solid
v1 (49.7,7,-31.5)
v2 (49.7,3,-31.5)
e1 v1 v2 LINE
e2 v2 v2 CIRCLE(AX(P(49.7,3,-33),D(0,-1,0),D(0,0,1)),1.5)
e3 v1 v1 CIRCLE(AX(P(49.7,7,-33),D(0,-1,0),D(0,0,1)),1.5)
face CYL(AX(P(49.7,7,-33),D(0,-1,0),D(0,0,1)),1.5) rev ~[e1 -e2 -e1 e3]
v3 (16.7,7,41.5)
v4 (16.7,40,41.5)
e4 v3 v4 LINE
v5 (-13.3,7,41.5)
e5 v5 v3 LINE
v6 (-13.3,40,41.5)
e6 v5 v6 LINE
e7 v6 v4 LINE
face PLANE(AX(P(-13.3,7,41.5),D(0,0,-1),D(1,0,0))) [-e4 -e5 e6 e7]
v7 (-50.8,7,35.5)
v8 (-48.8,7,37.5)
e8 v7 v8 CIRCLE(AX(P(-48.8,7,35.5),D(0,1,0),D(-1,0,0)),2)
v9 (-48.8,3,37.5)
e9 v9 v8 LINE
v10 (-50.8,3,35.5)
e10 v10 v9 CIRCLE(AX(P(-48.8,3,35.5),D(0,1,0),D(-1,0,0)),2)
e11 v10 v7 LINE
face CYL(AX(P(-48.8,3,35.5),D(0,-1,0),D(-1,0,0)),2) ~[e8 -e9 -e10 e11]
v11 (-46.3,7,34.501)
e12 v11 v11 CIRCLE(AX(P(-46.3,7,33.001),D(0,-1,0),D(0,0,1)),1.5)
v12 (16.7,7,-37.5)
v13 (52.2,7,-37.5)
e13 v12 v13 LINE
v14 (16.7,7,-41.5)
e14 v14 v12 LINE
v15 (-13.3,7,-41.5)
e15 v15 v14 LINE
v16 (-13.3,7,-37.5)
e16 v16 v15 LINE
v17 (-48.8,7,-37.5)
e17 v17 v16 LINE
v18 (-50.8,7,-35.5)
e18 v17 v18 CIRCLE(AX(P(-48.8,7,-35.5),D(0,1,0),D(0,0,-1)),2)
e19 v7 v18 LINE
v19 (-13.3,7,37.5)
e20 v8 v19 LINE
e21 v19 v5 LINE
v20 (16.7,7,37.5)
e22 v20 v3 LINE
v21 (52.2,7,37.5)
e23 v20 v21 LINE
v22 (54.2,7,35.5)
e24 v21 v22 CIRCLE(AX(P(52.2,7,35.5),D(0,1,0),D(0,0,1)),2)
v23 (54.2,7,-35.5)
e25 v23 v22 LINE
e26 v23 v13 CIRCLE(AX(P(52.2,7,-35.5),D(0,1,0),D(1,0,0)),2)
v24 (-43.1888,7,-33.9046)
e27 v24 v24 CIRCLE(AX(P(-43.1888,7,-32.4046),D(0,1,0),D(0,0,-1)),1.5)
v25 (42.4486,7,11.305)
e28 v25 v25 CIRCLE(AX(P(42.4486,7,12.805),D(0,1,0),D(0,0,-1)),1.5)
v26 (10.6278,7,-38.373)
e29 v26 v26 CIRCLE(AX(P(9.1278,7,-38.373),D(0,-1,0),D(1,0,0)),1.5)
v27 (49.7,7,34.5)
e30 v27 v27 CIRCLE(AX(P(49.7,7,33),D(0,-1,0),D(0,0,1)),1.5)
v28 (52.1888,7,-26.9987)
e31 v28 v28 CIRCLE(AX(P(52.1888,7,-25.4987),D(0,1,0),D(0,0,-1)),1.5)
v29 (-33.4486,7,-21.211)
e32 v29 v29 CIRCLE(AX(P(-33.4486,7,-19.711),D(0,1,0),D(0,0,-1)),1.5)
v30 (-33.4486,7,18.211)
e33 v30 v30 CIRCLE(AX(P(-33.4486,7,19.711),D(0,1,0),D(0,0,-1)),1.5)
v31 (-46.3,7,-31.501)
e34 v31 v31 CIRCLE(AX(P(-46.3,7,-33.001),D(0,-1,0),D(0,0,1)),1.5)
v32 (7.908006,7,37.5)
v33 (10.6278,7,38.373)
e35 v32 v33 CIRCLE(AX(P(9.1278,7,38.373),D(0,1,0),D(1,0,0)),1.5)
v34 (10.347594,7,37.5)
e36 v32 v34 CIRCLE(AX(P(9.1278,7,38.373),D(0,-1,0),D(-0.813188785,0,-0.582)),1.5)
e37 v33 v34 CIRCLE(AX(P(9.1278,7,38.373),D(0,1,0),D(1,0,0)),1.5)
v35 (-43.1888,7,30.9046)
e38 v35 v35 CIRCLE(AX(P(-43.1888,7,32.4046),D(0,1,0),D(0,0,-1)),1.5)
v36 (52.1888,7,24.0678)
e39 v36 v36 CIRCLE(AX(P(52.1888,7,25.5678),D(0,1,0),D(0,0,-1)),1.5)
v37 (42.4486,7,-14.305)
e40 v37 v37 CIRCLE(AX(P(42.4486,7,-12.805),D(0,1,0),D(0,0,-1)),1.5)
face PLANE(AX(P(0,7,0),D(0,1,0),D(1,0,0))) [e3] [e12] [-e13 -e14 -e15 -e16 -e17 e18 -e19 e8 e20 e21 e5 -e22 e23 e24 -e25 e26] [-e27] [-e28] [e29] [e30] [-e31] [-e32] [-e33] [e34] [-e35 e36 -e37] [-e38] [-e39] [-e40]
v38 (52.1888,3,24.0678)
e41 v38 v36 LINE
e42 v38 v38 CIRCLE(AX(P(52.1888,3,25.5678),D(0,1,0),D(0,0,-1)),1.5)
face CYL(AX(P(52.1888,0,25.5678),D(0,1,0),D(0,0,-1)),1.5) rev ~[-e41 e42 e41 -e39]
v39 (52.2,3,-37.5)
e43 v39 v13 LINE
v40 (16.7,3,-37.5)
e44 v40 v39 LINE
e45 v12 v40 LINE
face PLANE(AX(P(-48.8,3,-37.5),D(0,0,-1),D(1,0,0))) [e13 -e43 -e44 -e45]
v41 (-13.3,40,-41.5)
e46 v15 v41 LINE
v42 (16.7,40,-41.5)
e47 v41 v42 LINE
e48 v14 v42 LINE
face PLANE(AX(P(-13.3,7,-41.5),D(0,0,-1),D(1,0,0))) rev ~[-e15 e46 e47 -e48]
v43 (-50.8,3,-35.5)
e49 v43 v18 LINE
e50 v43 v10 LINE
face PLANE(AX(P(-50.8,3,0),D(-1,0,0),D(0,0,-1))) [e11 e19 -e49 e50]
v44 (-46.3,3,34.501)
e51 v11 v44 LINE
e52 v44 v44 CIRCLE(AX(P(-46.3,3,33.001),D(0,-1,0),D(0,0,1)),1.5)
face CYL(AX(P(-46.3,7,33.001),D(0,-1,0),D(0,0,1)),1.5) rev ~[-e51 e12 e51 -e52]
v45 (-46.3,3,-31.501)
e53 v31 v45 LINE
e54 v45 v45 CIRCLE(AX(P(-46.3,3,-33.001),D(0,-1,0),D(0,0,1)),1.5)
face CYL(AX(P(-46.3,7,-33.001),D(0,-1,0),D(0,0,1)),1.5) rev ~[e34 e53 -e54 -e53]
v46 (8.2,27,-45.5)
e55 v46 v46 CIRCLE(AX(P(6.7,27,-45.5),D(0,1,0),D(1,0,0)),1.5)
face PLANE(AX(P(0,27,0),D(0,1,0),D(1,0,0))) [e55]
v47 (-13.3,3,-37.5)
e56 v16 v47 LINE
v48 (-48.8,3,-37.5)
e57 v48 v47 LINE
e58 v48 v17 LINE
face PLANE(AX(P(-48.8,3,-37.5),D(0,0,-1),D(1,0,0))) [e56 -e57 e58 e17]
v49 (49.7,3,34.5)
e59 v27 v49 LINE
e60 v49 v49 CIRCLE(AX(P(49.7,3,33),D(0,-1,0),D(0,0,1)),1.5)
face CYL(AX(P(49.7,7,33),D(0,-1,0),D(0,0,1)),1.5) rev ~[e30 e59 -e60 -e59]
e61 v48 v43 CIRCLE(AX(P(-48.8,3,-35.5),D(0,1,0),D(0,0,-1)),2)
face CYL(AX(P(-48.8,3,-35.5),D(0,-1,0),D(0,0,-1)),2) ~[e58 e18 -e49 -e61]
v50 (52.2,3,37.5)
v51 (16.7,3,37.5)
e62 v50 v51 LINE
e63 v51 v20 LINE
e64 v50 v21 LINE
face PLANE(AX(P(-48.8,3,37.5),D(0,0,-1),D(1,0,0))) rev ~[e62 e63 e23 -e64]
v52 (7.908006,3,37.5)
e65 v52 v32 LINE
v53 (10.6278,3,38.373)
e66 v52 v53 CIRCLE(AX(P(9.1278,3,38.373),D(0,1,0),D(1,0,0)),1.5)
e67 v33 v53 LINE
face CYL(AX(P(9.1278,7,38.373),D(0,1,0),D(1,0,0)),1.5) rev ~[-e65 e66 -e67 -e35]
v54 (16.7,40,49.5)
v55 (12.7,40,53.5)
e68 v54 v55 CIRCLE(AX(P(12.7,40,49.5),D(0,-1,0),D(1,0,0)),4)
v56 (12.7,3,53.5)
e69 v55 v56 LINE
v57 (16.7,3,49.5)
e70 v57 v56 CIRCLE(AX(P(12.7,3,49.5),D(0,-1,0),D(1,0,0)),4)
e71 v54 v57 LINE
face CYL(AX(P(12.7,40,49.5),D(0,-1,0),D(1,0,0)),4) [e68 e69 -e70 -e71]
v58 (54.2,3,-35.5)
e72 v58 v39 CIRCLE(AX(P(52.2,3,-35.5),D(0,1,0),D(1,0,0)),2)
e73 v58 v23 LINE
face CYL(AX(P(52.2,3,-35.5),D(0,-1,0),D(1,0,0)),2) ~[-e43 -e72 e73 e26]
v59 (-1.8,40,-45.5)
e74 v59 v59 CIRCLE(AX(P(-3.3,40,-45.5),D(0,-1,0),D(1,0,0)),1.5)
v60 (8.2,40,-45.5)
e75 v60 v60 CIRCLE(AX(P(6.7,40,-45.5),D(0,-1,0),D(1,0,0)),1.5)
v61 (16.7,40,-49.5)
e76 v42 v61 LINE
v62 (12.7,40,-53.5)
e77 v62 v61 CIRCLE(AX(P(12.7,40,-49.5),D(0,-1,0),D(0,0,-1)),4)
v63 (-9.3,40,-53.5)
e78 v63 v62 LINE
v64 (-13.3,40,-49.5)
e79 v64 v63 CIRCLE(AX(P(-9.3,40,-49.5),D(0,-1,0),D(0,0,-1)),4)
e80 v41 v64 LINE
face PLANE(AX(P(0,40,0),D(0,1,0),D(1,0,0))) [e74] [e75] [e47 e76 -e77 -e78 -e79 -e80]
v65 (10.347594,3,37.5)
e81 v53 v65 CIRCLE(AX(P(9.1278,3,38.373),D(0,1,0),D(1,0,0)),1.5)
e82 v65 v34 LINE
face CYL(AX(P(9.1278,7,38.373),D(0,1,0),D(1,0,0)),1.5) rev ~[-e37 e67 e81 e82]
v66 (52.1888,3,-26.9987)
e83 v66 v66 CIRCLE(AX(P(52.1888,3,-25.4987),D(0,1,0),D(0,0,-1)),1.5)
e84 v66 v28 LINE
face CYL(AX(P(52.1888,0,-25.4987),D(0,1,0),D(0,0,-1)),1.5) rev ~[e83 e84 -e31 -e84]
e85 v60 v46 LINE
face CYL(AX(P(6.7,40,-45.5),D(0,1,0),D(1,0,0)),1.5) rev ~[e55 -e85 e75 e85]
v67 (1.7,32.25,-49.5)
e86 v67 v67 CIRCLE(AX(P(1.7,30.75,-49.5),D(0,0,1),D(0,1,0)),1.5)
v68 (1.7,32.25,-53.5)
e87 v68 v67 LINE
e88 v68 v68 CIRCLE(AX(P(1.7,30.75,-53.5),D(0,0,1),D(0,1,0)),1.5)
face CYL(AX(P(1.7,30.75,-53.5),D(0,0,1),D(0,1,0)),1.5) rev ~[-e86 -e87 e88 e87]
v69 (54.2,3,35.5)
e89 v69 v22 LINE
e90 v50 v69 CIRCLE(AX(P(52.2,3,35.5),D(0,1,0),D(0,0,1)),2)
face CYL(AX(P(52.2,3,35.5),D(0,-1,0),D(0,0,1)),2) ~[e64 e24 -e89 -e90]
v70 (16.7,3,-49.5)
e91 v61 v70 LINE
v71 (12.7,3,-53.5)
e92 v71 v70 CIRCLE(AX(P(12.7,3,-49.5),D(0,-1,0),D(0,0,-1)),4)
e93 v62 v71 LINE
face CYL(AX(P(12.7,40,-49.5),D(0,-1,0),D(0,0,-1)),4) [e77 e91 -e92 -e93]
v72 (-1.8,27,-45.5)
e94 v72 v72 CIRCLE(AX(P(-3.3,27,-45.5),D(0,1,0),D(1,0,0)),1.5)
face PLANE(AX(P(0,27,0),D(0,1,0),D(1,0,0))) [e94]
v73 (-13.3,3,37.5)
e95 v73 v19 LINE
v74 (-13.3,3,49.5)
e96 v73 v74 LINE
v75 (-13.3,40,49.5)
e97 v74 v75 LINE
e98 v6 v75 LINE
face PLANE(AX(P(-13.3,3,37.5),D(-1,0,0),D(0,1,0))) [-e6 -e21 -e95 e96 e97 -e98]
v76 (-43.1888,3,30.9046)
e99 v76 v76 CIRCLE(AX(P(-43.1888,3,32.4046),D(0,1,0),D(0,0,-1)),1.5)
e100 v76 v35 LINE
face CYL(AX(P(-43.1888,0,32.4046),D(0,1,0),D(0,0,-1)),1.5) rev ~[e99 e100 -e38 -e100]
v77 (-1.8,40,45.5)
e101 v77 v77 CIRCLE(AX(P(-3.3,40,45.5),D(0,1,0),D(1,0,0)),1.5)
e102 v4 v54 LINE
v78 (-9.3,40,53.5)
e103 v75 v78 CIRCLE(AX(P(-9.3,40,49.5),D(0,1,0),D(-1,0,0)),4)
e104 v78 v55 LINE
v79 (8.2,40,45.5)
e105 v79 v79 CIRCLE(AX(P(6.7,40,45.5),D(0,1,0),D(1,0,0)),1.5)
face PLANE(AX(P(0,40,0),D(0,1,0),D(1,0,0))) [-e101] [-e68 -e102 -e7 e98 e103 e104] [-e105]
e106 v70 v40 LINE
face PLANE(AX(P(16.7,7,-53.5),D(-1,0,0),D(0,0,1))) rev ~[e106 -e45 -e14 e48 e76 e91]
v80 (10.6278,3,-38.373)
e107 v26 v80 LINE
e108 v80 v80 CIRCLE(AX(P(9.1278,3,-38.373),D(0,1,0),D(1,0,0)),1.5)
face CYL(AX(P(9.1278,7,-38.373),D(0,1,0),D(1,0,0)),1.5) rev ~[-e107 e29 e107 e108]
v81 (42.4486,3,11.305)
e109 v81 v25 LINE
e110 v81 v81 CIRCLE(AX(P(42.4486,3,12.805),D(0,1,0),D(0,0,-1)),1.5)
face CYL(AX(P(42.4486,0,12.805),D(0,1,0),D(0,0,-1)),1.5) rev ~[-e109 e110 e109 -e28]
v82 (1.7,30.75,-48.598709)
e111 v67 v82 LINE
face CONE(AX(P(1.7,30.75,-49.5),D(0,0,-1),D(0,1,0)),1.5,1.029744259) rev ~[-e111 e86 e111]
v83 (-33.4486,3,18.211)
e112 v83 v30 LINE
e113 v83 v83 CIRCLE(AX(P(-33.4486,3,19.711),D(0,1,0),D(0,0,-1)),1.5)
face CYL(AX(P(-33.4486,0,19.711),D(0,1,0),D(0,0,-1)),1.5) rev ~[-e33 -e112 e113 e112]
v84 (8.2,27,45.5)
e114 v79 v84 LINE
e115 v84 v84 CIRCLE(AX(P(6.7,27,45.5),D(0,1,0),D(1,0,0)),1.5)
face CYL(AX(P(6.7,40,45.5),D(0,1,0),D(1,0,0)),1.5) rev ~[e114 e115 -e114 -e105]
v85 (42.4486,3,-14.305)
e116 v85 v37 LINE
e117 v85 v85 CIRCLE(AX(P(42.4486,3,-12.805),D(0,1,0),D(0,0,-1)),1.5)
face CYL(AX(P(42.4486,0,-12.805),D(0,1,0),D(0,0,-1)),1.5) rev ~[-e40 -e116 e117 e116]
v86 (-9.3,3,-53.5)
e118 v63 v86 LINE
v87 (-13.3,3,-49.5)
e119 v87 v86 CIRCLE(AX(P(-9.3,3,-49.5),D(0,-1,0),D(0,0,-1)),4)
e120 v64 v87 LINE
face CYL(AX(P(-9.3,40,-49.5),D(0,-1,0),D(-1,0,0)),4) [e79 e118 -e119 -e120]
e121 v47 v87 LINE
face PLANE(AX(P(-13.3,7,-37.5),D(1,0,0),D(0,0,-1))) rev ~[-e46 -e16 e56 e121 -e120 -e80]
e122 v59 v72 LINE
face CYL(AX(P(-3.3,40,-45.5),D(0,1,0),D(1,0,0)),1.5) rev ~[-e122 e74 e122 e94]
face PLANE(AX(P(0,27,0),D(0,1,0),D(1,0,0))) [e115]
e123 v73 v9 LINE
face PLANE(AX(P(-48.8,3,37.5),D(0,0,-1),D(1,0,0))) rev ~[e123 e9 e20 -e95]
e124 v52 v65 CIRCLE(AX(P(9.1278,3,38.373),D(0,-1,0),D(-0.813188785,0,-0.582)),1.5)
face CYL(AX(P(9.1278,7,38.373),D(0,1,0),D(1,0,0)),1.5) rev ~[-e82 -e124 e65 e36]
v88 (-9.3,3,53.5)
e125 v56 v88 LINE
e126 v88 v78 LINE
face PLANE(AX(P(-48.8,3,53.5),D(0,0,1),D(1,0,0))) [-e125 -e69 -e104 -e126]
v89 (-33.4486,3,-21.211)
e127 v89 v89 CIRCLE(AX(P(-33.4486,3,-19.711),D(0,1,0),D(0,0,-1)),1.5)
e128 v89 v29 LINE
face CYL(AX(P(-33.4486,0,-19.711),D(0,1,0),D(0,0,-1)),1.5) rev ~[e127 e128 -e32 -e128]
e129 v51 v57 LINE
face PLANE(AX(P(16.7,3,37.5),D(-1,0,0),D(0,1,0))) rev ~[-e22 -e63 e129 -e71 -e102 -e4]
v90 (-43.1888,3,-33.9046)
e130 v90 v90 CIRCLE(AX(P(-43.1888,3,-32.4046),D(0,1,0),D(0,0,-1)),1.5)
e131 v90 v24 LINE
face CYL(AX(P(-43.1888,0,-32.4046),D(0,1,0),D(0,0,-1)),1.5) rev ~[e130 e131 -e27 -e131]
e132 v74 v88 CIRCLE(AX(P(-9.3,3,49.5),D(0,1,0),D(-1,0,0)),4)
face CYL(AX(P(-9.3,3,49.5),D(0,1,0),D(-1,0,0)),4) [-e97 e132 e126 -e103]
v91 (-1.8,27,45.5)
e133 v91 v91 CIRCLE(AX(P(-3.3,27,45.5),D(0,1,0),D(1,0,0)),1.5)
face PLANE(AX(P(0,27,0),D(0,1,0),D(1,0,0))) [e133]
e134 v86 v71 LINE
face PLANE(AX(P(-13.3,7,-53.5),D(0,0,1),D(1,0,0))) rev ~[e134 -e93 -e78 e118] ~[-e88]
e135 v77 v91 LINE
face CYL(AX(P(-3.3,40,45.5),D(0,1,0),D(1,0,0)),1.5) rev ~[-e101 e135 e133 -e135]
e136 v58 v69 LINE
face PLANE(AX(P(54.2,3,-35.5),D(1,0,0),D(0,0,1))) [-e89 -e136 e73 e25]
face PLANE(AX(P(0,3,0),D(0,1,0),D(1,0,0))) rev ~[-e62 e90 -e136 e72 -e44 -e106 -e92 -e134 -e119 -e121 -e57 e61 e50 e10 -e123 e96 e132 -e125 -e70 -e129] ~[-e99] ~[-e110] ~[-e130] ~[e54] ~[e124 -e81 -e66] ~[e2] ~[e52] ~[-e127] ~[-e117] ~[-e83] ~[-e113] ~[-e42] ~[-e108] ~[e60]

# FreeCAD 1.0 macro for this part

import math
import FreeCAD as App
import Part
import Sketcher
Q = App.Units.Quantity


def edges_at(feature, points):
    """Names of the edges that pass closest to the given points."""
    edges = feature.Shape.Edges
    near = lambda p: min(range(len(edges)), key=lambda i: edges[i].distToShape(Part.Vertex(*p))[0])
    return sorted({f"Edge{near(p) + 1}" for p in points})


def add_polygon(sketch, points):
    """Adds a closed chain of lines whose ends are joined by coincident constraints."""
    first, n = sketch.GeometryCount, len(points)
    for a, b in zip(points, points[1:] + points[:1]):
        sketch.addGeometry(Part.LineSegment(App.Vector(*a, 0), App.Vector(*b, 0)), False)
    for i in range(n):
        sketch.addConstraint(Sketcher.Constraint("Coincident", first + i, 2, first + (i + 1) % n, 1))

doc = App.newDocument("Part")
body = doc.addObject("PartDesign::Body", "Body")

sketch1 = body.newObject("Sketcher::SketchObject", "Sketch")
sketch1.AttachmentSupport = (doc.getObject("XZ_Plane"), [""])
sketch1.MapMode = "FlatFace"
sketch1.addGeometry(Part.LineSegment(App.Vector(31.752, 80.9988, 0), App.Vector(18, 63.0769, 0)), False)
sketch1.addGeometry(Part.LineSegment(App.Vector(18, 63.0769, 0), App.Vector(64.0145, 27.7688, 0)), False)
sketch1.addGeometry(Part.LineSegment(App.Vector(64.0145, 27.7688, 0), App.Vector(75.6609, 42.9467, 0)), False)
sketch1.addGeometry(Part.ArcOfCircle(Part.Circle(App.Vector(0, 0, 0), App.Vector(0, 0, 1), 86.999947), math.radians(-29.580145), math.radians(29.580145)), False)
sketch1.addGeometry(Part.LineSegment(App.Vector(75.6609, -42.9467, 0), App.Vector(64.0145, -27.7688, 0)), False)
sketch1.addGeometry(Part.LineSegment(App.Vector(64.0145, -27.7688, 0), App.Vector(18, -63.0769, 0)), False)
sketch1.addGeometry(Part.LineSegment(App.Vector(18, -63.0769, 0), App.Vector(31.752, -80.9988, 0)), False)
sketch1.addGeometry(Part.ArcOfCircle(Part.Circle(App.Vector(0, 0, 0), App.Vector(0, 0, 1), 86.999981), math.radians(-103.444779), math.radians(-68.594532)), False)
sketch1.addGeometry(Part.LineSegment(App.Vector(-20.2282, -84.6157, 0), App.Vector(-9, -69.9829, 0)), False)
sketch1.addGeometry(Part.LineSegment(App.Vector(-9, -69.9829, 0), App.Vector(-55.0145, -34.6747, 0)), False)
sketch1.addGeometry(Part.LineSegment(App.Vector(-55.0145, -34.6747, 0), App.Vector(-58.0583, -38.6415, 0)), False)
sketch1.addGeometry(Part.LineSegment(App.Vector(-58.0583, -38.6415, 0), App.Vector(-59, -37.9189, 0)), False)
sketch1.addGeometry(Part.LineSegment(App.Vector(-59, -37.9189, 0), App.Vector(-59, 37.9189, 0)), False)
sketch1.addGeometry(Part.LineSegment(App.Vector(-59, 37.9189, 0), App.Vector(-58.0583, 38.6415, 0)), False)
sketch1.addGeometry(Part.LineSegment(App.Vector(-58.0583, 38.6415, 0), App.Vector(-55.0145, 34.6747, 0)), False)
sketch1.addGeometry(Part.LineSegment(App.Vector(-55.0145, 34.6747, 0), App.Vector(-9, 69.9829, 0)), False)
sketch1.addGeometry(Part.LineSegment(App.Vector(-9, 69.9829, 0), App.Vector(-20.2282, 84.6157, 0)), False)
sketch1.addGeometry(Part.ArcOfCircle(Part.Circle(App.Vector(0, 0, 0), App.Vector(0, 0, 1), 86.999947), math.radians(68.594532), math.radians(103.444779)), False)
sketch1.addGeometry(Part.Circle(App.Vector(18.868, -51.0667, 0), App.Vector(0, 0, 1), 1.5), False)
sketch1.addGeometry(Part.Circle(App.Vector(52.1888, -25.4987, 0), App.Vector(0, 0, 1), 1.5), False)
add_polygon(sketch1, [(49.5, -10), (74.5, -10), (74.5, 10), (49.5, 10)])
sketch1.addGeometry(Part.Circle(App.Vector(-9.868, -57.9726, 0), App.Vector(0, 0, 1), 1.5), False)
sketch1.addGeometry(Part.Circle(App.Vector(-43.1888, -32.4046, 0), App.Vector(0, 0, 1), 1.5), False)
sketch1.addGeometry(Part.Circle(App.Vector(52.1888, 25.4987, 0), App.Vector(0, 0, 1), 1.5), False)
sketch1.addGeometry(Part.Circle(App.Vector(18.868, 51.0667, 0), App.Vector(0, 0, 1), 1.5), False)
sketch1.addGeometry(Part.Circle(App.Vector(-43.1888, 32.4046, 0), App.Vector(0, 0, 1), 1.5), False)
sketch1.addGeometry(Part.Circle(App.Vector(-9.868, 57.9726, 0), App.Vector(0, 0, 1), 1.5), False)
sketch1.addConstraint(Sketcher.Constraint("Coincident", 0, 2, 1, 1))
sketch1.addConstraint(Sketcher.Constraint("Coincident", 1, 2, 2, 1))
sketch1.addConstraint(Sketcher.Constraint("Coincident", 2, 2, 3, 2))
sketch1.addConstraint(Sketcher.Constraint("Coincident", 3, 1, 4, 1))
sketch1.addConstraint(Sketcher.Constraint("Coincident", 4, 2, 5, 1))
sketch1.addConstraint(Sketcher.Constraint("Coincident", 5, 2, 6, 1))
sketch1.addConstraint(Sketcher.Constraint("Coincident", 6, 2, 7, 2))
sketch1.addConstraint(Sketcher.Constraint("Coincident", 7, 1, 8, 1))
sketch1.addConstraint(Sketcher.Constraint("Coincident", 8, 2, 9, 1))
sketch1.addConstraint(Sketcher.Constraint("Coincident", 9, 2, 10, 1))
sketch1.addConstraint(Sketcher.Constraint("Coincident", 10, 2, 11, 1))
sketch1.addConstraint(Sketcher.Constraint("Coincident", 11, 2, 12, 1))
sketch1.addConstraint(Sketcher.Constraint("Coincident", 12, 2, 13, 1))
sketch1.addConstraint(Sketcher.Constraint("Coincident", 13, 2, 14, 1))
sketch1.addConstraint(Sketcher.Constraint("Coincident", 14, 2, 15, 1))
sketch1.addConstraint(Sketcher.Constraint("Coincident", 15, 2, 16, 1))
sketch1.addConstraint(Sketcher.Constraint("Coincident", 16, 2, 17, 2))
sketch1.addConstraint(Sketcher.Constraint("Coincident", 17, 1, 0, 1))
sketch1.addConstraint(Sketcher.Constraint("Vertical", 12))
sketch1.addConstraint(Sketcher.Constraint("Horizontal", 20))
sketch1.addConstraint(Sketcher.Constraint("Vertical", 21))
sketch1.addConstraint(Sketcher.Constraint("Horizontal", 22))
sketch1.addConstraint(Sketcher.Constraint("Vertical", 23))
sketch1.addConstraint(Sketcher.Constraint("Coincident", 3, 3, -1, 1))
sketch1.addConstraint(Sketcher.Constraint("Coincident", 7, 3, -1, 1))
sketch1.addConstraint(Sketcher.Constraint("Coincident", 17, 3, -1, 1))
sketch1.addConstraint(Sketcher.Constraint("Equal", 3, 7))
sketch1.addConstraint(Sketcher.Constraint("Equal", 7, 17))
sketch1.addConstraint(Sketcher.Constraint("Equal", 18, 19))
sketch1.addConstraint(Sketcher.Constraint("Equal", 19, 24))
sketch1.addConstraint(Sketcher.Constraint("Equal", 24, 25))
sketch1.addConstraint(Sketcher.Constraint("Equal", 25, 26))
sketch1.addConstraint(Sketcher.Constraint("Equal", 26, 27))
sketch1.addConstraint(Sketcher.Constraint("Equal", 27, 28))
sketch1.addConstraint(Sketcher.Constraint("Equal", 28, 29))
sketch1.addConstraint(Sketcher.Constraint("Symmetric", 19, 3, 26, 3, -1))
sketch1.addConstraint(Sketcher.Constraint("Symmetric", 18, 3, 27, 3, -1))
sketch1.addConstraint(Sketcher.Constraint("Symmetric", 25, 3, 28, 3, -1))
sketch1.addConstraint(Sketcher.Constraint("Symmetric", 24, 3, 29, 3, -1))
sketch1.addConstraint(Sketcher.Constraint("Symmetric", 1, 2, 4, 2, -1))
sketch1.addConstraint(Sketcher.Constraint("Symmetric", 0, 2, 5, 2, -1))
sketch1.addConstraint(Sketcher.Constraint("Symmetric", 10, 2, 13, 2, -1))
sketch1.addConstraint(Sketcher.Constraint("Symmetric", 9, 2, 14, 2, -1))
sketch1.addConstraint(Sketcher.Constraint("Symmetric", 8, 2, 15, 2, -1))
sketch1.addConstraint(Sketcher.Constraint("Perpendicular", 0, 1))
sketch1.addConstraint(Sketcher.Constraint("Perpendicular", 1, 2))
sketch1.addConstraint(Sketcher.Constraint("Perpendicular", 4, 5))
sketch1.addConstraint(Sketcher.Constraint("Perpendicular", 5, 6))
sketch1.addConstraint(Sketcher.Constraint("Parallel", 2, 8))
sketch1.addConstraint(Sketcher.Constraint("Perpendicular", 8, 9))
sketch1.addConstraint(Sketcher.Constraint("Perpendicular", 9, 10))
sketch1.addConstraint(Sketcher.Constraint("Perpendicular", 10, 11))
sketch1.addConstraint(Sketcher.Constraint("Perpendicular", 6, 13))
sketch1.addConstraint(Sketcher.Constraint("Perpendicular", 15, 16))
sketch1.addConstraint(Sketcher.Constraint("Equal", 5, 9))
sketch1.addConstraint(Sketcher.Constraint("Diameter", 18, Q("3 mm")))
sketch1.addConstraint(Sketcher.Constraint("Radius", 3, Q("87 mm")))
sketch1.addConstraint(Sketcher.Constraint("DistanceX", 20, 1, 20, 2, Q("25 mm")))
sketch1.addConstraint(Sketcher.Constraint("DistanceY", 21, 1, 21, 2, Q("20 mm")))
sketch1.addConstraint(Sketcher.Constraint("Distance", 1, Q("58 mm")))
sketch1.addConstraint(Sketcher.Constraint("Distance", 10, Q("5 mm")))
sketch1.addConstraint(Sketcher.Constraint("DistanceX", -1, 1, 0, 2, Q("18 mm")))
sketch1.addConstraint(Sketcher.Constraint("DistanceX", 8, 2, -1, 1, Q("9 mm")))
sketch1.addConstraint(Sketcher.Constraint("DistanceX", 11, 2, -1, 1, Q("59 mm")))
sketch1.addConstraint(Sketcher.Constraint("Angle", 2, Q("52.5 deg")))
sketch1.addConstraint(Sketcher.Constraint("DistanceY", 20, 2, -1, 1, Q("10 mm")))
sketch1.addConstraint(Sketcher.Constraint("DistanceX", -1, 1, 20, 2, Q("74.5 mm")))
sketch1.addConstraint(Sketcher.Constraint("DistanceY", 6, 2, 19, 3, Q("55.5 mm")))
sketch1.addConstraint(Sketcher.Constraint("Distance", 0, Q("22.59 mm")))
sketch1.addConstraint(Sketcher.Constraint("DistanceY", 2, 2, 27, 3, Q("8.12 mm")))
sketch1.addConstraint(Sketcher.Constraint("DistanceX", 24, 3, 6, 2, Q("41.62 mm")))
sketch1.addConstraint(Sketcher.Constraint("DistanceY", 9, 2, 25, 3, Q("2.27 mm")))
sketch1.addConstraint(Sketcher.Constraint("DistanceY", 12, 1, 12, 2, Q("75.8378 mm")))
sketch1.addConstraint(Sketcher.Constraint("DistanceX", -1, 1, 18, 3, Q("18.868 mm")))
sketch1.addConstraint(Sketcher.Constraint("DistanceY", 24, 3, 18, 3, Q("6.906 mm")))
sketch1.addConstraint(Sketcher.Constraint("DistanceX", 26, 3, 2, 2, Q("23.472 mm")))
sketch1.addConstraint(Sketcher.Constraint("DistanceX", 25, 3, -1, 1, Q("43.1888 mm")))
pad1 = body.newObject("PartDesign::Pad", "Pad")
pad1.Profile = sketch1
pad1.Length = 3
pad1.Reversed = True

sketch2 = body.newObject("Sketcher::SketchObject", "Sketch001")
sketch2.AttachmentSupport = (doc.getObject("XZ_Plane"), [""])
sketch2.MapMode = "FlatFace"
sketch2.AttachmentOffset = App.Placement(App.Vector(0, 0, -3), App.Rotation())
sketch2.addGeometry(Part.Circle(App.Vector(-33.4486, 19.711, 0), App.Vector(0, 0, 1), 1.55), False)
sketch2.addGeometry(Part.Circle(App.Vector(-0.1278, 45.2789, 0), App.Vector(0, 0, 1), 1.55), False)
sketch2.addGeometry(Part.Circle(App.Vector(9.1278, 38.373, 0), App.Vector(0, 0, 1), 1.55), False)
sketch2.addGeometry(Part.Circle(App.Vector(42.4486, 12.805, 0), App.Vector(0, 0, 1), 1.55), False)
sketch2.addGeometry(Part.Circle(App.Vector(-33.4486, -19.711, 0), App.Vector(0, 0, 1), 1.55), False)
sketch2.addGeometry(Part.Circle(App.Vector(-0.1278, -45.2789, 0), App.Vector(0, 0, 1), 1.55), False)
sketch2.addGeometry(Part.Circle(App.Vector(9.1278, -38.373, 0), App.Vector(0, 0, 1), 1.55), False)
sketch2.addGeometry(Part.Circle(App.Vector(42.4486, -12.805, 0), App.Vector(0, 0, 1), 1.55), False)
sketch2.addConstraint(Sketcher.Constraint("Equal", 0, 1))
sketch2.addConstraint(Sketcher.Constraint("Equal", 1, 2))
sketch2.addConstraint(Sketcher.Constraint("Equal", 2, 3))
sketch2.addConstraint(Sketcher.Constraint("Equal", 3, 4))
sketch2.addConstraint(Sketcher.Constraint("Equal", 4, 5))
sketch2.addConstraint(Sketcher.Constraint("Equal", 5, 6))
sketch2.addConstraint(Sketcher.Constraint("Equal", 6, 7))
sketch2.addConstraint(Sketcher.Constraint("Symmetric", 0, 3, 4, 3, -1))
sketch2.addConstraint(Sketcher.Constraint("Symmetric", 1, 3, 5, 3, -1))
sketch2.addConstraint(Sketcher.Constraint("Symmetric", 2, 3, 6, 3, -1))
sketch2.addConstraint(Sketcher.Constraint("Symmetric", 3, 3, 7, 3, -1))
sketch2.addConstraint(Sketcher.Constraint("Diameter", 0, Q("3.1 mm")))
sketch2.addConstraint(Sketcher.Constraint("DistanceY", 4, 3, 1, 3, Q("64.99 mm")))
sketch2.addConstraint(Sketcher.Constraint("DistanceY", 7, 3, 3, 3, Q("25.61 mm")))
sketch2.addConstraint(Sketcher.Constraint("DistanceY", -1, 1, 0, 3, Q("19.711 mm")))
sketch2.addConstraint(Sketcher.Constraint("DistanceY", -1, 1, 2, 3, Q("38.373 mm")))
sketch2.addConstraint(Sketcher.Constraint("DistanceX", 0, 3, -1, 1, Q("33.4486 mm")))
sketch2.addConstraint(Sketcher.Constraint("DistanceX", 1, 3, -1, 1, Q("0.1278 mm")))
sketch2.addConstraint(Sketcher.Constraint("DistanceX", -1, 1, 2, 3, Q("9.1278 mm")))
sketch2.addConstraint(Sketcher.Constraint("DistanceX", -1, 1, 3, 3, Q("42.4486 mm")))
pocket1 = body.newObject("PartDesign::Pocket", "Pocket")
pocket1.Profile = sketch2
pocket1.Length = 10
pocket1.Reversed = True

sketch3 = body.newObject("Sketcher::SketchObject", "Sketch002")
sketch3.AttachmentSupport = (doc.getObject("XZ_Plane"), [""])
sketch3.MapMode = "FlatFace"
sketch3.AttachmentOffset = App.Placement(App.Vector(0, 0, -3), App.Rotation())
add_polygon(sketch3, [(-58.0583, 38.6415), (-55.0145, 34.6747), (-59, 31.6165), (-59, 37.9189)])
sketch3.addGeometry(Part.LineSegment(App.Vector(5.2804, 80.9406, 0), App.Vector(-9, 69.9829, 0)), False)
sketch3.addGeometry(Part.LineSegment(App.Vector(-9, 69.9829, 0), App.Vector(-20.2282, 84.6157, 0)), False)
sketch3.addGeometry(Part.ArcOfCircle(Part.Circle(App.Vector(0, 0, 0), App.Vector(0, 0, 1), 86.999947), math.radians(89.583384), math.radians(103.444779)), False)
sketch3.addGeometry(Part.LineSegment(App.Vector(0.6326, 86.9977, 0), App.Vector(5.2804, 80.9406, 0)), False)
add_polygon(sketch3, [(9.3831, 79.7727), (22.870139, 69.42377), (18, 63.0769), (4.513, 73.4259)])
sketch3.addGeometry(Part.LineSegment(App.Vector(78.2949, 16.8111, 0), App.Vector(64.0145, 27.7688, 0)), False)
sketch3.addGeometry(Part.LineSegment(App.Vector(64.0145, 27.7688, 0), App.Vector(75.6609, 42.9467, 0)), False)
sketch3.addGeometry(Part.ArcOfCircle(Part.Circle(App.Vector(0, 0, 0), App.Vector(0, 0, 1), 86.999947), math.radians(15.891815), math.radians(29.580145)), False)
sketch3.addGeometry(Part.LineSegment(App.Vector(83.6749, 23.8225, 0), App.Vector(78.2949, 16.8111, 0)), False)
sketch3.addConstraint(Sketcher.Constraint("Coincident", 4, 2, 5, 1))
sketch3.addConstraint(Sketcher.Constraint("Coincident", 5, 2, 6, 2))
sketch3.addConstraint(Sketcher.Constraint("Coincident", 6, 1, 7, 1))
sketch3.addConstraint(Sketcher.Constraint("Coincident", 7, 2, 4, 1))
sketch3.addConstraint(Sketcher.Constraint("Coincident", 12, 2, 13, 1))
sketch3.addConstraint(Sketcher.Constraint("Coincident", 13, 2, 14, 2))
sketch3.addConstraint(Sketcher.Constraint("Coincident", 14, 1, 15, 1))
sketch3.addConstraint(Sketcher.Constraint("Coincident", 15, 2, 12, 1))
sketch3.addConstraint(Sketcher.Constraint("Vertical", 2))
sketch3.addConstraint(Sketcher.Constraint("Coincident", 6, 3, -1, 1))
sketch3.addConstraint(Sketcher.Constraint("Coincident", 14, 3, -1, 1))
sketch3.addConstraint(Sketcher.Constraint("Equal", 6, 14))
sketch3.addConstraint(Sketcher.Constraint("Perpendicular", 0, 1))
sketch3.addConstraint(Sketcher.Constraint("Parallel", 1, 3))
sketch3.addConstraint(Sketcher.Constraint("Parallel", 3, 4))
sketch3.addConstraint(Sketcher.Constraint("Perpendicular", 4, 5))
sketch3.addConstraint(Sketcher.Constraint("Parallel", 5, 7))
sketch3.addConstraint(Sketcher.Constraint("Perpendicular", 8, 9))
sketch3.addConstraint(Sketcher.Constraint("Perpendicular", 9, 10))
sketch3.addConstraint(Sketcher.Constraint("Perpendicular", 10, 11))
sketch3.addConstraint(Sketcher.Constraint("Perpendicular", 11, 12))
sketch3.addConstraint(Sketcher.Constraint("Perpendicular", 12, 13))
sketch3.addConstraint(Sketcher.Constraint("Parallel", 13, 15))
sketch3.addConstraint(Sketcher.Constraint("Equal", 4, 12))
sketch3.addConstraint(Sketcher.Constraint("Distance", 4, Q("18 mm")))
sketch3.addConstraint(Sketcher.Constraint("Distance", 8, Q("17 mm")))
sketch3.addConstraint(Sketcher.Constraint("Distance", 9, Q("8 mm")))
sketch3.addConstraint(Sketcher.Constraint("DistanceX", -1, 1, 9, 2, Q("18 mm")))
sketch3.addConstraint(Sketcher.Constraint("Radius", 6, Q("87 mm")))
sketch3.addConstraint(Sketcher.Constraint("Distance", 0, Q("5 mm")))
sketch3.addConstraint(Sketcher.Constraint("DistanceX", 1, 2, -1, 1, Q("59 mm")))
sketch3.addConstraint(Sketcher.Constraint("DistanceX", 4, 2, -1, 1, Q("9 mm")))
sketch3.addConstraint(Sketcher.Constraint("Angle", 0, Q("-52.5003 deg")))
sketch3.addConstraint(Sketcher.Constraint("Angle", 8, Q("-37.5 deg")))
sketch3.addConstraint(Sketcher.Constraint("DistanceX", 3, 2, 5, 2, Q("37.83 mm")))
sketch3.addConstraint(Sketcher.Constraint("DistanceX", 15, 2, 14, 1, Q("5.38 mm")))
sketch3.addConstraint(Sketcher.Constraint("Distance", 3, Q("1.187 mm")))
sketch3.addConstraint(Sketcher.Constraint("DistanceY", -1, 1, 2, 2, Q("37.919 mm")))
sketch3.addConstraint(Sketcher.Constraint("DistanceY", -1, 1, 9, 2, Q("63.077 mm")))
sketch3.addConstraint(Sketcher.Constraint("DistanceX", -1, 1, 13, 2, Q("75.661 mm")))
pocket2 = body.newObject("PartDesign::Pocket", "Pocket001")
pocket2.Profile = sketch3
pocket2.Length = 10
pocket2.Reversed = True
doc.recompute()

mirrored = body.newObject("PartDesign::Mirrored", "Mirrored")
mirrored.Originals = [pocket2]
mirrored.MirrorPlane = (doc.getObject("XY_Plane"), [""])
body.Tip = mirrored

sketch4 = body.newObject("Sketcher::SketchObject", "Sketch003")
sketch4.AttachmentSupport = (doc.getObject("XZ_Plane"), [""])
sketch4.MapMode = "FlatFace"
sketch4.AttachmentOffset = App.Placement(App.Vector(0, 0, -3), App.Rotation())
sketch4.addGeometry(Part.LineSegment(App.Vector(-50.8, -35.5, 0), App.Vector(-50.8, 35.5, 0)), False)
sketch4.addGeometry(Part.ArcOfCircle(Part.Circle(App.Vector(-48.8, 35.5, 0), App.Vector(0, 0, 1), 2), math.radians(90), math.radians(180)), False)
sketch4.addGeometry(Part.LineSegment(App.Vector(-48.8, 37.5, 0), App.Vector(52.2, 37.5, 0)), False)
sketch4.addGeometry(Part.ArcOfCircle(Part.Circle(App.Vector(52.2, 35.5, 0), App.Vector(0, 0, 1), 2), math.radians(0), math.radians(90)), False)
sketch4.addGeometry(Part.LineSegment(App.Vector(54.2, 35.5, 0), App.Vector(54.2, -35.5, 0)), False)
sketch4.addGeometry(Part.ArcOfCircle(Part.Circle(App.Vector(52.2, -35.5, 0), App.Vector(0, 0, 1), 2), math.radians(-90), math.radians(0)), False)
sketch4.addGeometry(Part.LineSegment(App.Vector(52.2, -37.5, 0), App.Vector(-48.8, -37.5, 0)), False)
sketch4.addGeometry(Part.ArcOfCircle(Part.Circle(App.Vector(-48.8, -35.5, 0), App.Vector(0, 0, 1), 2), math.radians(180), math.radians(270)), False)
sketch4.addConstraint(Sketcher.Constraint("Tangent", 0, 2, 1, 2))
sketch4.addConstraint(Sketcher.Constraint("Tangent", 1, 1, 2, 1))
sketch4.addConstraint(Sketcher.Constraint("Tangent", 2, 2, 3, 2))
sketch4.addConstraint(Sketcher.Constraint("Tangent", 3, 1, 4, 1))
sketch4.addConstraint(Sketcher.Constraint("Tangent", 4, 2, 5, 2))
sketch4.addConstraint(Sketcher.Constraint("Tangent", 5, 1, 6, 1))
sketch4.addConstraint(Sketcher.Constraint("Tangent", 6, 2, 7, 2))
sketch4.addConstraint(Sketcher.Constraint("Tangent", 7, 1, 0, 1))
sketch4.addConstraint(Sketcher.Constraint("Vertical", 0))
sketch4.addConstraint(Sketcher.Constraint("Horizontal", 2))
sketch4.addConstraint(Sketcher.Constraint("Vertical", 4))
sketch4.addConstraint(Sketcher.Constraint("Horizontal", 6))
sketch4.addConstraint(Sketcher.Constraint("Equal", 1, 3))
sketch4.addConstraint(Sketcher.Constraint("Equal", 3, 5))
sketch4.addConstraint(Sketcher.Constraint("Equal", 5, 7))
sketch4.addConstraint(Sketcher.Constraint("Radius", 1, Q("2 mm")))
sketch4.addConstraint(Sketcher.Constraint("DistanceY", 5, 1, 2, 2, Q("75 mm")))
sketch4.addConstraint(Sketcher.Constraint("DistanceY", -1, 1, 1, 1, Q("37.5 mm")))
sketch4.addConstraint(Sketcher.Constraint("DistanceX", 2, 1, 2, 2, Q("101 mm")))
sketch4.addConstraint(Sketcher.Constraint("DistanceX", 1, 3, -1, 1, Q("48.8 mm")))
pad2 = body.newObject("PartDesign::Pad", "Pad001")
pad2.Profile = sketch4
pad2.Length = 4
pad2.Reversed = True

sketch5 = body.newObject("Sketcher::SketchObject", "Sketch004")
sketch5.AttachmentSupport = (doc.getObject("XZ_Plane"), [""])
sketch5.MapMode = "FlatFace"
sketch5.addGeometry(Part.Circle(App.Vector(-43.1888, -32.4046, 0), App.Vector(0, 0, 1), 1.5), False)
sketch5.addGeometry(Part.Circle(App.Vector(-33.4486, -19.711, 0), App.Vector(0, 0, 1), 1.5), False)
sketch5.addGeometry(Part.Circle(App.Vector(-33.4486, 19.711, 0), App.Vector(0, 0, 1), 1.5), False)
sketch5.addGeometry(Part.Circle(App.Vector(-43.1888, 32.4046, 0), App.Vector(0, 0, 1), 1.5), False)
sketch5.addGeometry(Part.Circle(App.Vector(9.1278, -38.373, 0), App.Vector(0, 0, 1), 1.5), False)
sketch5.addGeometry(Part.Circle(App.Vector(42.4486, -12.805, 0), App.Vector(0, 0, 1), 1.5), False)
sketch5.addGeometry(Part.Circle(App.Vector(42.4486, 12.805, 0), App.Vector(0, 0, 1), 1.5), False)
sketch5.addGeometry(Part.Circle(App.Vector(52.1888, 25.5678, 0), App.Vector(0, 0, 1), 1.5), False)
sketch5.addGeometry(Part.Circle(App.Vector(9.1278, 38.373, 0), App.Vector(0, 0, 1), 1.5), False)
sketch5.addConstraint(Sketcher.Constraint("Equal", 0, 1))
sketch5.addConstraint(Sketcher.Constraint("Equal", 1, 2))
sketch5.addConstraint(Sketcher.Constraint("Equal", 2, 3))
sketch5.addConstraint(Sketcher.Constraint("Equal", 3, 4))
sketch5.addConstraint(Sketcher.Constraint("Equal", 4, 5))
sketch5.addConstraint(Sketcher.Constraint("Equal", 5, 6))
sketch5.addConstraint(Sketcher.Constraint("Equal", 6, 7))
sketch5.addConstraint(Sketcher.Constraint("Equal", 7, 8))
sketch5.addConstraint(Sketcher.Constraint("Symmetric", 1, 3, 2, 3, -1))
sketch5.addConstraint(Sketcher.Constraint("Symmetric", 0, 3, 3, 3, -1))
sketch5.addConstraint(Sketcher.Constraint("Symmetric", 5, 3, 6, 3, -1))
sketch5.addConstraint(Sketcher.Constraint("Symmetric", 4, 3, 8, 3, -1))
sketch5.addConstraint(Sketcher.Constraint("Diameter", 0, Q("3 mm")))
sketch5.addConstraint(Sketcher.Constraint("DistanceY", 5, 3, 6, 3, Q("25.61 mm")))
sketch5.addConstraint(Sketcher.Constraint("DistanceY", 1, 3, -1, 1, Q("19.711 mm")))
sketch5.addConstraint(Sketcher.Constraint("DistanceY", 4, 3, -1, 1, Q("38.373 mm")))
sketch5.addConstraint(Sketcher.Constraint("DistanceX", 4, 3, 7, 3, Q("43.061 mm")))
sketch5.addConstraint(Sketcher.Constraint("DistanceX", 0, 3, -1, 1, Q("43.1888 mm")))
sketch5.addConstraint(Sketcher.Constraint("DistanceY", 0, 3, -1, 1, Q("32.4046 mm")))
sketch5.addConstraint(Sketcher.Constraint("DistanceX", 1, 3, -1, 1, Q("33.4486 mm")))
sketch5.addConstraint(Sketcher.Constraint("DistanceX", -1, 1, 4, 3, Q("9.1278 mm")))
sketch5.addConstraint(Sketcher.Constraint("DistanceX", -1, 1, 5, 3, Q("42.4486 mm")))
sketch5.addConstraint(Sketcher.Constraint("DistanceY", -1, 1, 7, 3, Q("25.5678 mm")))
doc.recompute()
hole = body.newObject("PartDesign::Hole", "Hole")
hole.Profile = sketch5
hole.ThreadType = "None"
hole.Diameter = 3
hole.DepthType = "ThroughAll"

sketch6 = body.newObject("Sketcher::SketchObject", "Sketch005")
sketch6.AttachmentSupport = (doc.getObject("XZ_Plane"), [""])
sketch6.MapMode = "FlatFace"
sketch6.addGeometry(Part.Circle(App.Vector(52.1888, -25.4987, 0), App.Vector(0, 0, 1), 1.5), False)
sketch6.addConstraint(Sketcher.Constraint("Diameter", 0, Q("3 mm")))
sketch6.addConstraint(Sketcher.Constraint("DistanceX", -1, 1, 0, 3, Q("52.1888 mm")))
sketch6.addConstraint(Sketcher.Constraint("DistanceY", 0, 3, -1, 1, Q("25.4987 mm")))
doc.recompute()
hole2 = body.newObject("PartDesign::Hole", "Hole001")
hole2.Profile = sketch6
hole2.ThreadType = "None"
hole2.Diameter = 3
hole2.DepthType = "ThroughAll"

sketch7 = body.newObject("Sketcher::SketchObject", "Sketch006")
sketch7.AttachmentSupport = (doc.getObject("XZ_Plane"), [""])
sketch7.MapMode = "FlatFace"
sketch7.AttachmentOffset = App.Placement(App.Vector(0, 0, -7), App.Rotation())
sketch7.addGeometry(Part.Circle(App.Vector(-46.3, -33.001, 0), App.Vector(0, 0, 1), 1.5), False)
sketch7.addGeometry(Part.Circle(App.Vector(-46.3, 33.001, 0), App.Vector(0, 0, 1), 1.5), False)
sketch7.addGeometry(Part.Circle(App.Vector(49.7, -33, 0), App.Vector(0, 0, 1), 1.5), False)
sketch7.addGeometry(Part.Circle(App.Vector(49.7, 33, 0), App.Vector(0, 0, 1), 1.5), False)
sketch7.addConstraint(Sketcher.Constraint("Equal", 0, 1))
sketch7.addConstraint(Sketcher.Constraint("Equal", 1, 2))
sketch7.addConstraint(Sketcher.Constraint("Equal", 2, 3))
sketch7.addConstraint(Sketcher.Constraint("Symmetric", 0, 3, 1, 3, -1))
sketch7.addConstraint(Sketcher.Constraint("Symmetric", 2, 3, 3, 3, -1))
sketch7.addConstraint(Sketcher.Constraint("Diameter", 0, Q("3 mm")))
sketch7.addConstraint(Sketcher.Constraint("DistanceY", 2, 3, -1, 1, Q("33 mm")))
sketch7.addConstraint(Sketcher.Constraint("DistanceX", 0, 3, 2, 3, Q("96 mm")))
sketch7.addConstraint(Sketcher.Constraint("DistanceX", 0, 3, -1, 1, Q("46.3 mm")))
sketch7.addConstraint(Sketcher.Constraint("DistanceY", 0, 3, -1, 1, Q("33.001 mm")))
doc.recompute()
hole3 = body.newObject("PartDesign::Hole", "Hole002")
hole3.Profile = sketch7
hole3.ThreadType = "None"
hole3.Diameter = 3
hole3.DepthType = "ThroughAll"
hole3.Reversed = True

sketch8 = body.newObject("Sketcher::SketchObject", "Sketch007")
sketch8.AttachmentSupport = (doc.getObject("YZ_Plane"), [""])
sketch8.MapMode = "FlatFace"
sketch8.AttachmentOffset = App.Placement(App.Vector(0, 0, -59), App.Rotation())
add_polygon(sketch8, [(0, -86.9977), (0, 86.9977), (3, 86.9977), (3, -86.9977)])
sketch8.addConstraint(Sketcher.Constraint("Vertical", 0))
sketch8.addConstraint(Sketcher.Constraint("Horizontal", 1))
sketch8.addConstraint(Sketcher.Constraint("Vertical", 2))
sketch8.addConstraint(Sketcher.Constraint("Horizontal", 3))
sketch8.addConstraint(Sketcher.Constraint("Symmetric", 0, 2, 3, 2, -1, 1))
sketch8.addConstraint(Sketcher.Constraint("DistanceX", 1, 1, 1, 2, Q("3 mm")))
sketch8.addConstraint(Sketcher.Constraint("DistanceY", 0, 1, 0, 2, Q("173.9954 mm")))
pocket3 = body.newObject("PartDesign::Pocket", "Pocket002")
pocket3.Profile = sketch8
pocket3.Length = 1000
pocket3.Reversed = True

sketch9 = body.newObject("Sketcher::SketchObject", "Sketch008")
sketch9.AttachmentSupport = (doc.getObject("XY_Plane"), [""])
sketch9.MapMode = "FlatFace"
sketch9.AttachmentOffset = App.Placement(App.Vector(0, 0, 37.5), App.Rotation())
add_polygon(sketch9, [(-13.3, 7), (-13.3, 3), (16.7, 3), (16.7, 7)])
sketch9.addConstraint(Sketcher.Constraint("Vertical", 0))
sketch9.addConstraint(Sketcher.Constraint("Horizontal", 1))
sketch9.addConstraint(Sketcher.Constraint("Vertical", 2))
sketch9.addConstraint(Sketcher.Constraint("Horizontal", 3))
sketch9.addConstraint(Sketcher.Constraint("DistanceX", 1, 1, 1, 2, Q("30 mm")))
sketch9.addConstraint(Sketcher.Constraint("DistanceY", 0, 2, 0, 1, Q("4 mm")))
sketch9.addConstraint(Sketcher.Constraint("DistanceY", -1, 1, 0, 2, Q("3 mm")))
sketch9.addConstraint(Sketcher.Constraint("DistanceX", 0, 2, -1, 1, Q("13.3 mm")))
pad3 = body.newObject("PartDesign::Pad", "Pad002")
pad3.Profile = sketch9
pad3.Length = 16

sketch10 = body.newObject("Sketcher::SketchObject", "Sketch009")
sketch10.AttachmentSupport = (doc.getObject("XZ_Plane"), [""])
sketch10.MapMode = "FlatFace"
sketch10.AttachmentOffset = App.Placement(App.Vector(0, 0, -7), App.Rotation())
add_polygon(sketch10, [(-13.3, -53.5), (-13.3, -37.5), (16.7, -37.5), (16.7, -53.5)])
sketch10.addConstraint(Sketcher.Constraint("Vertical", 0))
sketch10.addConstraint(Sketcher.Constraint("Horizontal", 1))
sketch10.addConstraint(Sketcher.Constraint("Vertical", 2))
sketch10.addConstraint(Sketcher.Constraint("Horizontal", 3))
sketch10.addConstraint(Sketcher.Constraint("DistanceX", 1, 1, 1, 2, Q("30 mm")))
sketch10.addConstraint(Sketcher.Constraint("DistanceY", 0, 1, 0, 2, Q("16 mm")))
sketch10.addConstraint(Sketcher.Constraint("DistanceX", 0, 2, -1, 1, Q("13.3 mm")))
sketch10.addConstraint(Sketcher.Constraint("DistanceY", 0, 2, -1, 1, Q("37.5 mm")))
pad4 = body.newObject("PartDesign::Pad", "Pad003")
pad4.Profile = sketch10
pad4.Length = 4

sketch11 = body.newObject("Sketcher::SketchObject", "Sketch010")
sketch11.AttachmentSupport = (doc.getObject("XZ_Plane"), [""])
sketch11.MapMode = "FlatFace"
sketch11.AttachmentOffset = App.Placement(App.Vector(0, 0, -7), App.Rotation())
sketch11.addGeometry(Part.Circle(App.Vector(9.1278, 38.373, 0), App.Vector(0, 0, 1), 1.500014), False)
sketch11.addGeometry(Part.Circle(App.Vector(9.1278, -38.373, 0), App.Vector(0, 0, 1), 1.5), False)
sketch11.addConstraint(Sketcher.Constraint("Equal", 0, 1))
sketch11.addConstraint(Sketcher.Constraint("Symmetric", 0, 3, 1, 3, -1))
sketch11.addConstraint(Sketcher.Constraint("Diameter", 0, Q("3 mm")))
sketch11.addConstraint(Sketcher.Constraint("DistanceY", -1, 1, 0, 3, Q("38.373 mm")))
sketch11.addConstraint(Sketcher.Constraint("DistanceX", -1, 1, 0, 3, Q("9.1278 mm")))
pocket4 = body.newObject("PartDesign::Pocket", "Pocket003")
pocket4.Profile = sketch11
pocket4.Length = 4
pocket4.Reversed = True

sketch12 = body.newObject("Sketcher::SketchObject", "Sketch011")
sketch12.AttachmentSupport = (doc.getObject("XZ_Plane"), [""])
sketch12.MapMode = "FlatFace"
sketch12.AttachmentOffset = App.Placement(App.Vector(0, 0, -7), App.Rotation())
add_polygon(sketch12, [(16.7, 41.5), (-13.3, 41.5), (-13.3, 53.5), (16.7, 53.5)])
add_polygon(sketch12, [(-13.3, -53.5), (-13.3, -41.5), (16.7, -41.5), (16.7, -53.5)])
sketch12.addConstraint(Sketcher.Constraint("Horizontal", 0))
sketch12.addConstraint(Sketcher.Constraint("Vertical", 1))
sketch12.addConstraint(Sketcher.Constraint("Horizontal", 2))
sketch12.addConstraint(Sketcher.Constraint("Vertical", 3))
sketch12.addConstraint(Sketcher.Constraint("Vertical", 4))
sketch12.addConstraint(Sketcher.Constraint("Horizontal", 5))
sketch12.addConstraint(Sketcher.Constraint("Vertical", 6))
sketch12.addConstraint(Sketcher.Constraint("Horizontal", 7))
sketch12.addConstraint(Sketcher.Constraint("Symmetric", 0, 2, 4, 2, -1))
sketch12.addConstraint(Sketcher.Constraint("Symmetric", 2, 2, 6, 2, -1))
sketch12.addConstraint(Sketcher.Constraint("DistanceY", 1, 1, 1, 2, Q("12 mm")))
sketch12.addConstraint(Sketcher.Constraint("DistanceX", 0, 2, 0, 1, Q("30 mm")))
sketch12.addConstraint(Sketcher.Constraint("DistanceY", 4, 2, 0, 2, Q("83 mm")))
sketch12.addConstraint(Sketcher.Constraint("DistanceX", 0, 2, -1, 1, Q("13.3 mm")))
pad5 = body.newObject("PartDesign::Pad", "Pad004")
pad5.Profile = sketch12
pad5.Length = 33
pad5.Reversed = True
doc.recompute()

fillet = body.newObject("PartDesign::Fillet", "Fillet")
fillet.Base = (pad5, edges_at(pad5, [
    (16.7, 21.5, -53.5),
    (-13.3, 21.5, -53.5),
    (16.7, 21.5, 53.5),
    (-13.3, 21.5, 53.5),
]))
fillet.Radius = 4

sketch13 = body.newObject("Sketcher::SketchObject", "Sketch012")
sketch13.AttachmentSupport = (doc.getObject("XY_Plane"), [""])
sketch13.MapMode = "FlatFace"
sketch13.AttachmentOffset = App.Placement(App.Vector(0, 0, -53.5), App.Rotation())
sketch13.addGeometry(Part.Circle(App.Vector(1.7, 30.75, 0), App.Vector(0, 0, 1), 1.5), False)
sketch13.addConstraint(Sketcher.Constraint("Diameter", 0, Q("3 mm")))
sketch13.addConstraint(Sketcher.Constraint("DistanceX", -1, 1, 0, 3, Q("1.7 mm")))
sketch13.addConstraint(Sketcher.Constraint("DistanceY", -1, 1, 0, 3, Q("30.75 mm")))
doc.recompute()
hole4 = body.newObject("PartDesign::Hole", "Hole003")
hole4.Profile = sketch13
hole4.ThreadType = "None"
hole4.Diameter = 3
hole4.DepthType = "Dimension"
hole4.Depth = 4
hole4.DrillPoint = "Angled"
hole4.DrillPointAngle = 118
hole4.Reversed = True

sketch14 = body.newObject("Sketcher::SketchObject", "Sketch013")
sketch14.AttachmentSupport = (doc.getObject("XZ_Plane"), [""])
sketch14.MapMode = "FlatFace"
sketch14.AttachmentOffset = App.Placement(App.Vector(0, 0, -40), App.Rotation())
sketch14.addGeometry(Part.Circle(App.Vector(-3.3, -45.5, 0), App.Vector(0, 0, 1), 1.5), False)
sketch14.addGeometry(Part.Circle(App.Vector(6.7, -45.5, 0), App.Vector(0, 0, 1), 1.5), False)
sketch14.addGeometry(Part.Circle(App.Vector(-3.3, 45.5, 0), App.Vector(0, 0, 1), 1.5), False)
sketch14.addGeometry(Part.Circle(App.Vector(6.7, 45.5, 0), App.Vector(0, 0, 1), 1.5), False)
sketch14.addConstraint(Sketcher.Constraint("Equal", 0, 1))
sketch14.addConstraint(Sketcher.Constraint("Equal", 1, 2))
sketch14.addConstraint(Sketcher.Constraint("Equal", 2, 3))
sketch14.addConstraint(Sketcher.Constraint("Symmetric", 0, 3, 2, 3, -1))
sketch14.addConstraint(Sketcher.Constraint("Symmetric", 1, 3, 3, 3, -1))
sketch14.addConstraint(Sketcher.Constraint("Horizontal", 0, 3, 1, 3))
sketch14.addConstraint(Sketcher.Constraint("Diameter", 0, Q("3 mm")))
sketch14.addConstraint(Sketcher.Constraint("DistanceX", 0, 3, 1, 3, Q("10 mm")))
sketch14.addConstraint(Sketcher.Constraint("DistanceY", 0, 3, 2, 3, Q("91 mm")))
sketch14.addConstraint(Sketcher.Constraint("DistanceX", 0, 3, -1, 1, Q("3.3 mm")))
pocket5 = body.newObject("PartDesign::Pocket", "Pocket004")
pocket5.Profile = sketch14
pocket5.Length = 13
pocket5.Reversed = True

doc.recompute()
